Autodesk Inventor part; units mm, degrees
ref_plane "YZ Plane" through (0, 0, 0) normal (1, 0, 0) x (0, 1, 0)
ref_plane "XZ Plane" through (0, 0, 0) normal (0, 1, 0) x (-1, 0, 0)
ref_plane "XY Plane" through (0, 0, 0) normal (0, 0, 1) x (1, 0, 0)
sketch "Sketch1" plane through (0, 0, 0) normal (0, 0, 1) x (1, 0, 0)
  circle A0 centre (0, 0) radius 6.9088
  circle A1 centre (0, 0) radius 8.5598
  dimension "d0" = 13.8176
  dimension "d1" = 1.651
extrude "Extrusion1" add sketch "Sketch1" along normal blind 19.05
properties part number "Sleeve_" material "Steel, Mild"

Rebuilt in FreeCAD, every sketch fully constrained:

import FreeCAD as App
import Part
import Sketcher
Q = App.Units.Quantity

doc = App.newDocument("Part")
params = doc.addObject("Spreadsheet::Sheet", "Params")
for row, (alias, value) in enumerate([
    ("sketch1_diameter", "0.544 in"),
    ("sketch1_diameter2", "0.674 in"),
    ("pad1_length", "0.75 in"),
], start=1):
    params.set(f"A{row}", alias)
    params.set(f"B{row}", "=" + value)
    params.setAlias(f"B{row}", alias)

body = doc.addObject("PartDesign::Body", "Body")

sketch1 = body.newObject("Sketcher::SketchObject", "Sketch")
sketch1.AttachmentSupport = (doc.getObject("XY_Plane"), [""])
sketch1.MapMode = "FlatFace"
sketch1.addGeometry(Part.Circle(App.Vector(0, 0, 0), App.Vector(0, 0, 1), 8.5598), False)
sketch1.addGeometry(Part.Circle(App.Vector(0, 0, 0), App.Vector(0, 0, 1), 6.9088), False)
sketch1.addConstraint(Sketcher.Constraint("Coincident", 0, 3, -1, 1))
sketch1.addConstraint(Sketcher.Constraint("Coincident", 1, 3, -1, 1))
sketch1.addConstraint(Sketcher.Constraint("Diameter", 1, Q("0.544 in")))
sketch1.addConstraint(Sketcher.Constraint("Diameter", 0, Q("0.674 in")))
sketch1.setExpression("Constraints[2]", "Params.sketch1_diameter")
sketch1.setExpression("Constraints[3]", "Params.sketch1_diameter2")
pad1 = body.newObject("PartDesign::Pad", "Pad")
pad1.Profile = sketch1
pad1.setExpression("Length", "Params.pad1_length")

doc.recompute()
